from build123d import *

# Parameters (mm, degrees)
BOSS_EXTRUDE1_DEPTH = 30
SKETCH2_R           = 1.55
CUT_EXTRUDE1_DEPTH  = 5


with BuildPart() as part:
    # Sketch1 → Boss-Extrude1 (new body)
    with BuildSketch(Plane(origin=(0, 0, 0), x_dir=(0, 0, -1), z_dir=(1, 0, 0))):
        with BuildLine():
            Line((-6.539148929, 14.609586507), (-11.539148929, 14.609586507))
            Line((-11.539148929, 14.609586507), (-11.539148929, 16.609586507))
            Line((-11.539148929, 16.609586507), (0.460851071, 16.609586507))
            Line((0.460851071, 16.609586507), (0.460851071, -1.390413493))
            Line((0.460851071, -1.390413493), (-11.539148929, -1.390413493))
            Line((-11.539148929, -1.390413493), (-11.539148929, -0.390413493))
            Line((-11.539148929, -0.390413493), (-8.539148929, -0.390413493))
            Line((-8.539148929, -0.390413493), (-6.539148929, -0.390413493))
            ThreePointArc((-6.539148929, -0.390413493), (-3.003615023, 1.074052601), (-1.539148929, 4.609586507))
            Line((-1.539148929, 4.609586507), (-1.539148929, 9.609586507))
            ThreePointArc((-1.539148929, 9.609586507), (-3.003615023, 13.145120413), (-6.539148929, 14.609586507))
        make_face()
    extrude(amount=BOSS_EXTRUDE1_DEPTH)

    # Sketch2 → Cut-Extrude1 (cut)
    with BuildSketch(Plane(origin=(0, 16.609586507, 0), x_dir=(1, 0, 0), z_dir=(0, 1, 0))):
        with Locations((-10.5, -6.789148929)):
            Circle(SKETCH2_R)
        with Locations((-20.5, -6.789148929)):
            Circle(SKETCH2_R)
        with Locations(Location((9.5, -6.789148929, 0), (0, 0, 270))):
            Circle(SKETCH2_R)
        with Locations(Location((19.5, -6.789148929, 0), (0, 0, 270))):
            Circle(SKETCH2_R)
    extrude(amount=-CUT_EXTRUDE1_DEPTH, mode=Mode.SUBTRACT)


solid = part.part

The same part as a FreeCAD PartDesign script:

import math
import FreeCAD as App
import Part
import Sketcher

V = App.Vector
Q = App.Units.Quantity

doc = App.newDocument("Part")
body = doc.addObject("PartDesign::Body", "Body")

# Sketch on YZ plane
sketch1 = body.newObject("Sketcher::SketchObject", "Sketch")
sketch1.AttachmentSupport = (doc.getObject("YZ_Plane"), [""])
sketch1.MapMode = "FlatFace"
sketch1.addGeometry([
    Part.LineSegment(V(14.6, 11.5, 0), V(14.6, 6.5, 0)),  # 0
    Part.ArcOfCircle(Part.Circle(V(9.6, 6.5, 0), V(0, 0, 1), 5), math.radians(-90), math.radians(0)),  # 1
    Part.LineSegment(V(9.6, 1.5, 0), V(4.6, 1.5, 0)),  # 2
    Part.ArcOfCircle(Part.Circle(V(4.6, 6.5, 0), V(0, 0, 1), 5), math.radians(180), math.radians(270)),  # 3
    Part.LineSegment(V(-0.4, 6.5, 0), V(-0.4, 11.5, 0)),  # 4
    Part.LineSegment(V(-0.4, 11.5, 0), V(-1.4, 11.5, 0)),  # 5
    Part.LineSegment(V(-1.4, 11.5, 0), V(-1.4, -0.5, 0)),  # 6
    Part.LineSegment(V(-1.4, -0.5, 0), V(16.6, -0.5, 0)),  # 7
    Part.LineSegment(V(16.6, -0.5, 0), V(16.6, 11.5, 0)),  # 8
    Part.LineSegment(V(16.6, 11.5, 0), V(14.6, 11.5, 0)),  # 9
], False)
sketch1.addConstraint([
    Sketcher.Constraint("Tangent", 0, 2, 1, 2),
    Sketcher.Constraint("Tangent", 1, 1, 2, 1),
    Sketcher.Constraint("Tangent", 2, 2, 3, 2),
    Sketcher.Constraint("Tangent", 3, 1, 4, 1),
    Sketcher.Constraint("Coincident", 4, 2, 5, 1),
    Sketcher.Constraint("Coincident", 5, 2, 6, 1),
    Sketcher.Constraint("Coincident", 6, 2, 7, 1),
    Sketcher.Constraint("Coincident", 7, 2, 8, 1),
    Sketcher.Constraint("Coincident", 8, 2, 9, 1),
    Sketcher.Constraint("Coincident", 9, 2, 0, 1),
    Sketcher.Constraint("Vertical", 0),
    Sketcher.Constraint("Horizontal", 2),
    Sketcher.Constraint("Vertical", 4),
    Sketcher.Constraint("Horizontal", 5),
    Sketcher.Constraint("Vertical", 6),
    Sketcher.Constraint("Horizontal", 7),
    Sketcher.Constraint("Vertical", 8),
    Sketcher.Constraint("Horizontal", 9),
    Sketcher.Constraint("Equal", 1, 3),
    Sketcher.Constraint("Horizontal", 5, 2, 8, 2),
    Sketcher.Constraint("Equal", 2, 0),
    Sketcher.Constraint("Radius", 1, Q("5 mm")),
    Sketcher.Constraint("DistanceX", 2, 2, 2, 1, Q("5 mm")),
    Sketcher.Constraint("DistanceX", 5, 2, 5, 1, Q("1 mm")),
    Sketcher.Constraint("DistanceX", 7, 1, 7, 2, Q("18 mm")),
    Sketcher.Constraint("DistanceY", 6, 2, 6, 1, Q("12 mm")),
    Sketcher.Constraint("DistanceY", -1, 1, 1, 3, Q("6.539149 mm")),
    Sketcher.Constraint("DistanceX", -1, 1, 1, 3, Q("9.609587 mm")),
])
pad1 = body.newObject("PartDesign::Pad", "Pad")
pad1.Profile = sketch1
pad1.Length = 30

# Sketch on XZ plane
sketch2 = body.newObject("Sketcher::SketchObject", "Sketch001")
sketch2.AttachmentSupport = (doc.getObject("XZ_Plane"), [""])
sketch2.MapMode = "FlatFace"
sketch2.AttachmentOffset = App.Placement(V(0, 0, -16.609587), App.Rotation())
sketch2.addGeometry([
    Part.Circle(V(-10.5, 6.8, 0), V(0, 0, 1), 1.6),
    Part.Circle(V(-20.5, 6.8, 0), V(0, 0, 1), 1.6),
    Part.Circle(V(9.5, 6.8, 0), V(0, 0, 1), 1.6),
    Part.Circle(V(19.5, 6.8, 0), V(0, 0, 1), 1.6),
], False)
sketch2.addConstraint([
    Sketcher.Constraint("Equal", 0, 1),
    Sketcher.Constraint("Equal", 1, 2),
    Sketcher.Constraint("Equal", 2, 3),
    Sketcher.Constraint("Horizontal", 0, 3, 1, 3),
    Sketcher.Constraint("Horizontal", 1, 3, 2, 3),
    Sketcher.Constraint("Horizontal", 2, 3, 3, 3),
    Sketcher.Constraint("Diameter", 0, Q("3.1 mm")),
    Sketcher.Constraint("DistanceX", 1, 3, 0, 3, Q("10 mm")),
    Sketcher.Constraint("DistanceX", 0, 3, 2, 3, Q("20 mm")),
    Sketcher.Constraint("DistanceX", 2, 3, 3, 3, Q("10 mm")),
    Sketcher.Constraint("DistanceX", 0, 3, -1, 1, Q("10.5 mm")),
    Sketcher.Constraint("DistanceY", -1, 1, 0, 3, Q("6.789149 mm")),
])
pocket1 = body.newObject("PartDesign::Pocket", "Pocket")
pocket1.Profile = sketch2
pocket1.Length = 5
pocket1.Reversed = True

doc.recompute()
